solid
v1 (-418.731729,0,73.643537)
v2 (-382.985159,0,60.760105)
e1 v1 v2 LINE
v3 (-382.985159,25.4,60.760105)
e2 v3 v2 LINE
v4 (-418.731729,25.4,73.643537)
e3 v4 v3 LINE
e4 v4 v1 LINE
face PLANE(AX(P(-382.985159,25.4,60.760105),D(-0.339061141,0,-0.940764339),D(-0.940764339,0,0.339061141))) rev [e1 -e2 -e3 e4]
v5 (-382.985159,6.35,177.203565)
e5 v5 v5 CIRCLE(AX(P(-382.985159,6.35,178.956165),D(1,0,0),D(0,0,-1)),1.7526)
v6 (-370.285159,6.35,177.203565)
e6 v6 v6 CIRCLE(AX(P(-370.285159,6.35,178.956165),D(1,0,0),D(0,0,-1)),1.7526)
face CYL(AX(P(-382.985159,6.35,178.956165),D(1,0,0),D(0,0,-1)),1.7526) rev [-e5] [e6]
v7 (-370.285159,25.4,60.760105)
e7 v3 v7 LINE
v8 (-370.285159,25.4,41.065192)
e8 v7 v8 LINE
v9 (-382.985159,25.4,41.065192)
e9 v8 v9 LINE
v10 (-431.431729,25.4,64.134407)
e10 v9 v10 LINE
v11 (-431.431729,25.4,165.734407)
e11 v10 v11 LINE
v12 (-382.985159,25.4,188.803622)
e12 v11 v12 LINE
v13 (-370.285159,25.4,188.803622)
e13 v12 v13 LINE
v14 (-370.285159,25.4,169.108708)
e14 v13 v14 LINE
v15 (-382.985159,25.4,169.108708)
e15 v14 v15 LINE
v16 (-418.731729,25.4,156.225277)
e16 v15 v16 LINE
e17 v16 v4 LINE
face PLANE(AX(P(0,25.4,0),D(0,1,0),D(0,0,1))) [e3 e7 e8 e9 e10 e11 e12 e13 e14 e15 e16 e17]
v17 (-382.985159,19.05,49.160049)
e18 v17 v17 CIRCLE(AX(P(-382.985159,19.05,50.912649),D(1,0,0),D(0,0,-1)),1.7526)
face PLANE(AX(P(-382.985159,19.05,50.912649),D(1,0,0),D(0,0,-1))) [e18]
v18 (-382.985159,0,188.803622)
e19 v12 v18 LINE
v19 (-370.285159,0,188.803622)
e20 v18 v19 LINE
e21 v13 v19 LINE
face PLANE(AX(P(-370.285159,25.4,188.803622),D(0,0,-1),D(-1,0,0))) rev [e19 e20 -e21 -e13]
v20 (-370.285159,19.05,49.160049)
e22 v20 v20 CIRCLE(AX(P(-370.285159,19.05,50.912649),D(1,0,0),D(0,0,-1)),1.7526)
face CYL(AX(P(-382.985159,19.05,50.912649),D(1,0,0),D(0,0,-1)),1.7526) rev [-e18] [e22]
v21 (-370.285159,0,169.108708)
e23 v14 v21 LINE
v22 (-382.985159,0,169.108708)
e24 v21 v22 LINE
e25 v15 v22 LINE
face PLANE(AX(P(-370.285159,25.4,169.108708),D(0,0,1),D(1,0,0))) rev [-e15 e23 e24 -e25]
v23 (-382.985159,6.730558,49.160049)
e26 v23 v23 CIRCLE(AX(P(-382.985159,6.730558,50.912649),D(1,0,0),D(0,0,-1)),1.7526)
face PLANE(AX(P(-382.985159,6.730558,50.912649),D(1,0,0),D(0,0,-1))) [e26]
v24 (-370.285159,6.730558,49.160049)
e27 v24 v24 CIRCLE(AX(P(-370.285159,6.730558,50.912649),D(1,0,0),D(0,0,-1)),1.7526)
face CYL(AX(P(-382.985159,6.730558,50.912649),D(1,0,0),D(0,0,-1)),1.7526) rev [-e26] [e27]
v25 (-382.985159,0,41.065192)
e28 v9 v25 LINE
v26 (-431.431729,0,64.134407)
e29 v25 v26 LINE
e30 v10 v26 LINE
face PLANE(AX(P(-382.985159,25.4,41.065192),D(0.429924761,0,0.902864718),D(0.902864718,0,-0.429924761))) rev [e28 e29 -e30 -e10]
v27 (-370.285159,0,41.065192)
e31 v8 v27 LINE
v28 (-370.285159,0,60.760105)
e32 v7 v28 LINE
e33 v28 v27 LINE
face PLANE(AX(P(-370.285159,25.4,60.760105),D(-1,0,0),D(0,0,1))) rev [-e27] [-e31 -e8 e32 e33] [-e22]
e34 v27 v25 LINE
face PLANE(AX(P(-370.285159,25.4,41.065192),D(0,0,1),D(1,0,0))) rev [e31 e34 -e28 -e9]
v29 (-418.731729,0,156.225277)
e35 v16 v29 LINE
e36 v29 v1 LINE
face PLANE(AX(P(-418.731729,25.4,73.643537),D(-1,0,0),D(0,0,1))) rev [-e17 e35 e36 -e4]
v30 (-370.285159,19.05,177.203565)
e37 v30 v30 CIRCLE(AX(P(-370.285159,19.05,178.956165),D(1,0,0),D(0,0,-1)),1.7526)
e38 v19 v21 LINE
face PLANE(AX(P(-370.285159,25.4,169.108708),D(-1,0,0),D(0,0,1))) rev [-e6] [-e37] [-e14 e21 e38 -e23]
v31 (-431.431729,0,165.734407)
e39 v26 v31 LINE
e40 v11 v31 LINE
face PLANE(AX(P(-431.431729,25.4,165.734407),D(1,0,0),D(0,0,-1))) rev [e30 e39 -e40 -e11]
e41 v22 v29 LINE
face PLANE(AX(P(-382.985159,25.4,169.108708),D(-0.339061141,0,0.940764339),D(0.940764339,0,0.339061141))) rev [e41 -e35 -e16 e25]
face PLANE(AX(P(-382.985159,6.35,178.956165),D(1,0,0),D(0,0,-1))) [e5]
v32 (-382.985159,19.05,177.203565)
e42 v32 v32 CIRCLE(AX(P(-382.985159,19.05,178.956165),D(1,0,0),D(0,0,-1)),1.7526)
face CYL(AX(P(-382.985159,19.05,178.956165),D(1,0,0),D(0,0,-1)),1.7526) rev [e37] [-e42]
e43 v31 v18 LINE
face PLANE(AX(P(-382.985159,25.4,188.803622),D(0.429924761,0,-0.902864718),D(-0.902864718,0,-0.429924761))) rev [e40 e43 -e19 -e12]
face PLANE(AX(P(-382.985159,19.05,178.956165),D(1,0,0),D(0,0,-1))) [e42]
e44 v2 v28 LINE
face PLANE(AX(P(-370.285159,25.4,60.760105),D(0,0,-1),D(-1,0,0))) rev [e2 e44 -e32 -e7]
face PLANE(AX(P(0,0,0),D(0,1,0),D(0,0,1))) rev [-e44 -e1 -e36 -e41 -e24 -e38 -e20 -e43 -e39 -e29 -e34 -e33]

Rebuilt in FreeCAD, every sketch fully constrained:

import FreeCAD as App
import Part
import Sketcher
Q = App.Units.Quantity

doc = App.newDocument("Part")
body = doc.addObject("PartDesign::Body", "Body")

# Sketch on XZ plane
sketch1 = body.newObject("Sketcher::SketchObject", "Sketch")
sketch1.AttachmentSupport = (doc.getObject("XZ_Plane"), [""])
sketch1.MapMode = "FlatFace"
sketch1.addGeometry(Part.LineSegment(App.Vector(-370.285159, 60.760105, 0), App.Vector(-370.285159, 41.065192, 0)), False)
sketch1.addGeometry(Part.LineSegment(App.Vector(-370.285159, 41.065192, 0), App.Vector(-382.985159, 41.065192, 0)), False)
sketch1.addGeometry(Part.LineSegment(App.Vector(-382.985159, 41.065192, 0), App.Vector(-431.431729, 64.134407, 0)), False)
sketch1.addGeometry(Part.LineSegment(App.Vector(-431.431729, 64.134407, 0), App.Vector(-431.431729, 165.734407, 0)), False)
sketch1.addGeometry(Part.LineSegment(App.Vector(-431.431729, 165.734407, 0), App.Vector(-382.985159, 188.803622, 0)), False)
sketch1.addGeometry(Part.LineSegment(App.Vector(-382.985159, 188.803622, 0), App.Vector(-370.285159, 188.803622, 0)), False)
sketch1.addGeometry(Part.LineSegment(App.Vector(-370.285159, 188.803622, 0), App.Vector(-370.285159, 169.108708, 0)), False)
sketch1.addGeometry(Part.LineSegment(App.Vector(-370.285159, 169.108708, 0), App.Vector(-382.985159, 169.108708, 0)), False)
sketch1.addGeometry(Part.LineSegment(App.Vector(-382.985159, 169.108708, 0), App.Vector(-418.731729, 156.225277, 0)), False)
sketch1.addGeometry(Part.LineSegment(App.Vector(-418.731729, 156.225277, 0), App.Vector(-418.731729, 73.643537, 0)), False)
sketch1.addGeometry(Part.LineSegment(App.Vector(-418.731729, 73.643537, 0), App.Vector(-382.985159, 60.760105, 0)), False)
sketch1.addGeometry(Part.LineSegment(App.Vector(-382.985159, 60.760105, 0), App.Vector(-370.285159, 60.760105, 0)), False)
sketch1.addConstraint(Sketcher.Constraint("Coincident", 0, 2, 1, 1))
sketch1.addConstraint(Sketcher.Constraint("Coincident", 1, 2, 2, 1))
sketch1.addConstraint(Sketcher.Constraint("Coincident", 2, 2, 3, 1))
sketch1.addConstraint(Sketcher.Constraint("Coincident", 3, 2, 4, 1))
sketch1.addConstraint(Sketcher.Constraint("Coincident", 4, 2, 5, 1))
sketch1.addConstraint(Sketcher.Constraint("Coincident", 5, 2, 6, 1))
sketch1.addConstraint(Sketcher.Constraint("Coincident", 6, 2, 7, 1))
sketch1.addConstraint(Sketcher.Constraint("Coincident", 7, 2, 8, 1))
sketch1.addConstraint(Sketcher.Constraint("Coincident", 8, 2, 9, 1))
sketch1.addConstraint(Sketcher.Constraint("Coincident", 9, 2, 10, 1))
sketch1.addConstraint(Sketcher.Constraint("Coincident", 10, 2, 11, 1))
sketch1.addConstraint(Sketcher.Constraint("Coincident", 11, 2, 0, 1))
sketch1.addConstraint(Sketcher.Constraint("Vertical", 0))
sketch1.addConstraint(Sketcher.Constraint("Horizontal", 1))
sketch1.addConstraint(Sketcher.Constraint("Vertical", 3))
sketch1.addConstraint(Sketcher.Constraint("Horizontal", 5))
sketch1.addConstraint(Sketcher.Constraint("Vertical", 6))
sketch1.addConstraint(Sketcher.Constraint("Horizontal", 7))
sketch1.addConstraint(Sketcher.Constraint("Vertical", 9))
sketch1.addConstraint(Sketcher.Constraint("Horizontal", 11))
sketch1.addConstraint(Sketcher.Constraint("Vertical", 1, 2, 4, 2))
sketch1.addConstraint(Sketcher.Constraint("Vertical", 0, 2, 5, 2))
sketch1.addConstraint(Sketcher.Constraint("Vertical", 4, 2, 7, 2))
sketch1.addConstraint(Sketcher.Constraint("Vertical", 7, 2, 10, 2))
sketch1.addConstraint(Sketcher.Constraint("Equal", 0, 6))
sketch1.addConstraint(Sketcher.Constraint("Equal", 2, 4))
sketch1.addConstraint(Sketcher.Constraint("Equal", 8, 10))
sketch1.addConstraint(Sketcher.Constraint("DistanceY", 3, 1, 3, 2, Q("4 in")))
sketch1.addConstraint(Sketcher.Constraint("DistanceX", 1, 2, 1, 1, Q("0.5 in")))
sketch1.addConstraint(Sketcher.Constraint("DistanceX", 3, 2, 8, 2, Q("0.5 in")))
sketch1.addConstraint(Sketcher.Constraint("DistanceY", 9, 2, 9, 1, Q("82.58174 mm")))
sketch1.addConstraint(Sketcher.Constraint("DistanceY", 3, 2, 6, 2, Q("3.374302 mm")))
sketch1.addConstraint(Sketcher.Constraint("Distance", 8, Q("37.997369 mm")))
sketch1.addConstraint(Sketcher.Constraint("DistanceY", 0, 2, 0, 1, Q("19.694913 mm")))
sketch1.addConstraint(Sketcher.Constraint("DistanceX", 0, 2, -1, 1, Q("370.285159 mm")))
sketch1.addConstraint(Sketcher.Constraint("DistanceY", -1, 1, 4, 2, Q("188.803622 mm")))
pad1 = body.newObject("PartDesign::Pad", "Pad")
pad1.Profile = sketch1
pad1.Length = Q("1 in")
pad1.Reversed = True

# Sketch on YZ plane
sketch2 = body.newObject("Sketcher::SketchObject", "Sketch001")
sketch2.AttachmentSupport = (doc.getObject("YZ_Plane"), [""])
sketch2.MapMode = "FlatFace"
sketch2.AttachmentOffset = App.Placement(App.Vector(0, 0, -370.285159), App.Rotation())
sketch2.addGeometry(Part.Circle(App.Vector(19.05, 178.956165, 0), App.Vector(0, 0, 1), 1.7526), False)
sketch2.addGeometry(Part.Circle(App.Vector(6.35, 178.956165, 0), App.Vector(0, 0, 1), 1.7526), False)
sketch2.addGeometry(Part.Circle(App.Vector(6.730558, 50.912649, 0), App.Vector(0, 0, 1), 1.7526), False)
sketch2.addGeometry(Part.Circle(App.Vector(19.05, 50.912649, 0), App.Vector(0, 0, 1), 1.7526), False)
sketch2.addConstraint(Sketcher.Constraint("Equal", 0, 1))
sketch2.addConstraint(Sketcher.Constraint("Equal", 1, 2))
sketch2.addConstraint(Sketcher.Constraint("Equal", 2, 3))
sketch2.addConstraint(Sketcher.Constraint("Horizontal", 0, 3, 1, 3))
sketch2.addConstraint(Sketcher.Constraint("Horizontal", 2, 3, 3, 3))
sketch2.addConstraint(Sketcher.Constraint("Vertical", 0, 3, 3, 3))
sketch2.addConstraint(Sketcher.Constraint("Diameter", 0, Q("0.138 in")))
sketch2.addConstraint(Sketcher.Constraint("DistanceX", 1, 3, 0, 3, Q("0.5 in")))
sketch2.addConstraint(Sketcher.Constraint("DistanceX", -1, 1, 0, 3, Q("0.75 in")))
sketch2.addConstraint(Sketcher.Constraint("DistanceX", -1, 1, 2, 3, Q("6.730558 mm")))
sketch2.addConstraint(Sketcher.Constraint("DistanceY", -1, 1, 2, 3, Q("50.912649 mm")))
sketch2.addConstraint(Sketcher.Constraint("DistanceY", -1, 1, 0, 3, Q("178.956165 mm")))
pocket1 = body.newObject("PartDesign::Pocket", "Pocket")
pocket1.Profile = sketch2
pocket1.Length = Q("0.5 in")

doc.recompute()
